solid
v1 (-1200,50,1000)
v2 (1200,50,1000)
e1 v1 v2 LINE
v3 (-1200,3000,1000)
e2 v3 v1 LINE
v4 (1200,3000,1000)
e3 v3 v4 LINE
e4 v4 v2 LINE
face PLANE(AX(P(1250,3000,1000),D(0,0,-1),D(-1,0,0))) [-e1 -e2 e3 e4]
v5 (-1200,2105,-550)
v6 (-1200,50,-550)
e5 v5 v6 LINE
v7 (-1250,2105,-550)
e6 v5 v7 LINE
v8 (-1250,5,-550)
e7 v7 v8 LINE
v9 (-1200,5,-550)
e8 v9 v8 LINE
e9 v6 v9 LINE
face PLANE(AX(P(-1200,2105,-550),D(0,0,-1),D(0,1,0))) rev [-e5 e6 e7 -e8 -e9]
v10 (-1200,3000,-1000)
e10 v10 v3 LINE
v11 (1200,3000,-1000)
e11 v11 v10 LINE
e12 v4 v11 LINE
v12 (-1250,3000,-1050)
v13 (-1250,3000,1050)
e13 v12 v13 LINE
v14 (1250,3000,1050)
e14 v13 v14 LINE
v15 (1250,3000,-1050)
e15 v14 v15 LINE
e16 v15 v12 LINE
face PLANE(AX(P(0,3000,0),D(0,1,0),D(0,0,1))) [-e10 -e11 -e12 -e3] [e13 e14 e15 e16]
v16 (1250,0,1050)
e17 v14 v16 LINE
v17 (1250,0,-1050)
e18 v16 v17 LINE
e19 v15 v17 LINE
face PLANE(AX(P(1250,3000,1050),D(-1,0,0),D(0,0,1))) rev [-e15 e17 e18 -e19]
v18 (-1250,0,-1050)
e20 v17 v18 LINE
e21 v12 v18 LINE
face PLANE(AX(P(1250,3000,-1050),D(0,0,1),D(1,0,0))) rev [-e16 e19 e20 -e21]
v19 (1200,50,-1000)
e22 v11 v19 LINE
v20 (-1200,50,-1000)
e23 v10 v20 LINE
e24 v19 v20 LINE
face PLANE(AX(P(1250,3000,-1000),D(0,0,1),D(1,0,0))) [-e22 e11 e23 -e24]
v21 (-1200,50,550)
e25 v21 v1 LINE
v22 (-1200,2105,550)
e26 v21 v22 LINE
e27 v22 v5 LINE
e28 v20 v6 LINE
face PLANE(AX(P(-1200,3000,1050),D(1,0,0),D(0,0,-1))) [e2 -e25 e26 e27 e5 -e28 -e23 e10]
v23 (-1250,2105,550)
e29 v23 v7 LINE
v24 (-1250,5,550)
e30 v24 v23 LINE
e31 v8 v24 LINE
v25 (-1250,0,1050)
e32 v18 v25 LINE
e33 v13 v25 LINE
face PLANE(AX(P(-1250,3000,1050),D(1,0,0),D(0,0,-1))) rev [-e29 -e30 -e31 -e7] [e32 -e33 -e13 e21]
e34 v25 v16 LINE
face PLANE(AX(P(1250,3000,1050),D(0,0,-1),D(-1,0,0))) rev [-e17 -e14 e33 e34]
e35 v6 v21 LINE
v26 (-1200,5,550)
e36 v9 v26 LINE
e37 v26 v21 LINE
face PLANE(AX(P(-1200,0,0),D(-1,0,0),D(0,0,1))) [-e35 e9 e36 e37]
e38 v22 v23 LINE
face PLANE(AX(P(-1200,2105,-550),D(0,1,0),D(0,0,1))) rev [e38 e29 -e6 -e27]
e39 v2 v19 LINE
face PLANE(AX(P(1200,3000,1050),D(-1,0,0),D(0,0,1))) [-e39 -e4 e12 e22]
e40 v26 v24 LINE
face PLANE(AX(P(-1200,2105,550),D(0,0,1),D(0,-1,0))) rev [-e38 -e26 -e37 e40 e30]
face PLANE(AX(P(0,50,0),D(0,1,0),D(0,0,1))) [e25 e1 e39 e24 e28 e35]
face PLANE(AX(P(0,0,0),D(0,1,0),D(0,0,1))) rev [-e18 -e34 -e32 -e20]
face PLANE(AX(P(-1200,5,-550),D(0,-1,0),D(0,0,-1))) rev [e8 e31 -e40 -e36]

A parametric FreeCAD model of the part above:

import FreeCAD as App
import Part
import Sketcher
Q = App.Units.Quantity


def faces_at(feature, points):
    """Names of the faces that lie closest to the given points."""
    faces = feature.Shape.Faces
    near = lambda p: min(range(len(faces)), key=lambda i: faces[i].distToShape(Part.Vertex(*p))[0])
    return sorted({f"Face{near(p) + 1}" for p in points})

doc = App.newDocument("Part")
body = doc.addObject("PartDesign::Body", "Body")

# Sketch on XZ plane
sketch1 = body.newObject("Sketcher::SketchObject", "Sketch")
sketch1.AttachmentSupport = (doc.getObject("XZ_Plane"), [""])
sketch1.MapMode = "FlatFace"
sketch1.addGeometry([
    Part.LineSegment(App.Vector(-1250, -1050, 0), App.Vector(-1250, 1050, 0)),
    Part.LineSegment(App.Vector(-1250, 1050, 0), App.Vector(1250, 1050, 0)),
    Part.LineSegment(App.Vector(1250, 1050, 0), App.Vector(1250, -1050, 0)),
    Part.LineSegment(App.Vector(1250, -1050, 0), App.Vector(-1250, -1050, 0)),
], False)
sketch1.addConstraint([
    Sketcher.Constraint("Coincident", 0, 2, 1, 1),
    Sketcher.Constraint("Coincident", 1, 2, 2, 1),
    Sketcher.Constraint("Coincident", 2, 2, 3, 1),
    Sketcher.Constraint("Coincident", 3, 2, 0, 1),
    Sketcher.Constraint("Vertical", 0),
    Sketcher.Constraint("Horizontal", 1),
    Sketcher.Constraint("Vertical", 2),
    Sketcher.Constraint("Horizontal", 3),
    Sketcher.Constraint("Symmetric", 0, 2, 2, 2, -1, 1),
    Sketcher.Constraint("DistanceX", 1, 1, 1, 2, Q("2500 mm")),
    Sketcher.Constraint("DistanceY", 0, 1, 0, 2, Q("2100 mm")),
])
pad1 = body.newObject("PartDesign::Pad", "Pad")
pad1.Profile = sketch1
pad1.Length = 3000
pad1.Reversed = True
doc.recompute()

thickness = body.newObject("PartDesign::Thickness", "Thickness")
thickness.Base = (pad1, faces_at(pad1, [(0, 3000, 0)]))
thickness.Value = 50
thickness.Reversed = True
thickness.Join = "Intersection"

# Sketch on YZ plane
sketch2 = body.newObject("Sketcher::SketchObject", "Sketch001")
sketch2.AttachmentSupport = (doc.getObject("YZ_Plane"), [""])
sketch2.MapMode = "FlatFace"
sketch2.AttachmentOffset = App.Placement(App.Vector(0, 0, -1250), App.Rotation())
sketch2.addGeometry([
    Part.LineSegment(App.Vector(2105, -550, 0), App.Vector(5, -550, 0)),
    Part.LineSegment(App.Vector(5, -550, 0), App.Vector(5, 550, 0)),
    Part.LineSegment(App.Vector(5, 550, 0), App.Vector(2105, 550, 0)),
    Part.LineSegment(App.Vector(2105, 550, 0), App.Vector(2105, -550, 0)),
], False)
sketch2.addConstraint([
    Sketcher.Constraint("Coincident", 0, 2, 1, 1),
    Sketcher.Constraint("Coincident", 1, 2, 2, 1),
    Sketcher.Constraint("Coincident", 2, 2, 3, 1),
    Sketcher.Constraint("Coincident", 3, 2, 0, 1),
    Sketcher.Constraint("Horizontal", 0),
    Sketcher.Constraint("Vertical", 1),
    Sketcher.Constraint("Horizontal", 2),
    Sketcher.Constraint("Vertical", 3),
    Sketcher.Constraint("DistanceX", 0, 2, 0, 1, Q("2100 mm")),
    Sketcher.Constraint("DistanceY", 1, 1, 1, 2, Q("1100 mm")),
    Sketcher.Constraint("DistanceX", -1, 1, 0, 2, Q("5 mm")),
    Sketcher.Constraint("DistanceY", 0, 2, -1, 1, Q("550 mm")),
])
pocket1 = body.newObject("PartDesign::Pocket", "Pocket")
pocket1.Profile = sketch2
pocket1.Length = 50
pocket1.Reversed = True

doc.recompute()
